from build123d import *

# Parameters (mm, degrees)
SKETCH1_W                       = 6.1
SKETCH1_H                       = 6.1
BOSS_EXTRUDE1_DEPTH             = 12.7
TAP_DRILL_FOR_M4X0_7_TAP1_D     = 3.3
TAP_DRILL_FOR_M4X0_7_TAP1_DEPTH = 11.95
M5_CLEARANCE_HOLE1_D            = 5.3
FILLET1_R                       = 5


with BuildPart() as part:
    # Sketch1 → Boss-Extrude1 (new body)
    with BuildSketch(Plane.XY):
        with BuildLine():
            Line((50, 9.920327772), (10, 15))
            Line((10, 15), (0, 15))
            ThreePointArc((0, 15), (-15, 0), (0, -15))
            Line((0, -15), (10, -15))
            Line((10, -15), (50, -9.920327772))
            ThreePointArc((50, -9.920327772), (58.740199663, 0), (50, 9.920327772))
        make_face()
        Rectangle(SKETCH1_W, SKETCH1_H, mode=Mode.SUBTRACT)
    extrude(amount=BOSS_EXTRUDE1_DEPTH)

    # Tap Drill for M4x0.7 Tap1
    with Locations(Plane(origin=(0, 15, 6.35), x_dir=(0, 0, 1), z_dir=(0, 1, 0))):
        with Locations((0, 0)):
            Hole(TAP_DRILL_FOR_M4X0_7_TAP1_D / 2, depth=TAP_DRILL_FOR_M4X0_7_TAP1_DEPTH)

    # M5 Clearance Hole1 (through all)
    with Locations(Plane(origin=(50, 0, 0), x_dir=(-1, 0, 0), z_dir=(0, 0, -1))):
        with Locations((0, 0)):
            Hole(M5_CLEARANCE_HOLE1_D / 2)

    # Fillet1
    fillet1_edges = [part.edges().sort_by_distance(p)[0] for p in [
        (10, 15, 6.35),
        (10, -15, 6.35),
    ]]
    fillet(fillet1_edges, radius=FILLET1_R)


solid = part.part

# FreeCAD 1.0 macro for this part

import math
import FreeCAD as App
import Part
import Sketcher
from FreeCAD import Vector


def edges_at(feature, points):
    """Names of the edges that pass closest to the given points."""
    edges = feature.Shape.Edges
    near = lambda p: min(range(len(edges)), key=lambda i: edges[i].distToShape(Part.Vertex(*p))[0])
    return sorted({f"Edge{near(p) + 1}" for p in points})


def add_polygon(sketch, points):
    """Adds a closed chain of lines whose ends are joined by coincident constraints."""
    first, n = sketch.GeometryCount, len(points)
    for a, b in zip(points, points[1:] + points[:1]):
        sketch.addGeometry(Part.LineSegment(App.Vector(*a, 0), App.Vector(*b, 0)), False)
    for i in range(n):
        sketch.addConstraint(Sketcher.Constraint("Coincident", first + i, 2, first + (i + 1) % n, 1))

doc = App.newDocument("Part")
body = doc.addObject("PartDesign::Body", "Body")

# Sketch on XY plane
sketch1 = body.newObject("Sketcher::SketchObject", "Sketch")
sketch1.AttachmentSupport = (doc.getObject("XY_Plane"), [""])
sketch1.MapMode = "FlatFace"
sketch1.addGeometry(Part.LineSegment(Vector(50, 10, 0), Vector(10, 15, 0)), False)  # 0
sketch1.addGeometry(Part.LineSegment(Vector(10, 15, 0), Vector(0, 15, 0)), False)  # 1
sketch1.addGeometry(Part.ArcOfCircle(Part.Circle(Vector(0, 0, 0), Vector(0, 0, 1), 15), math.radians(90), math.radians(270)), False)  # 2
sketch1.addGeometry(Part.LineSegment(Vector(0, -15, 0), Vector(10, -15, 0)), False)  # 3
sketch1.addGeometry(Part.LineSegment(Vector(10, -15, 0), Vector(50, -10, 0)), False)  # 4
sketch1.addGeometry(Part.ArcOfCircle(Part.Circle(Vector(49, 0, 0), Vector(0, 0, 1), 10), math.radians(-83), math.radians(83)), False)  # 5
add_polygon(sketch1, [(3, -3), (-3, -3), (-3, 3), (3, 3)])  # lines 6-9
sketch1.addConstraint(Sketcher.Constraint("Coincident", 0, 2, 1, 1))
sketch1.addConstraint(Sketcher.Constraint("Tangent", 1, 2, 2, 1))
sketch1.addConstraint(Sketcher.Constraint("Tangent", 2, 2, 3, 1))
sketch1.addConstraint(Sketcher.Constraint("Coincident", 3, 2, 4, 1))
sketch1.addConstraint(Sketcher.Constraint("Tangent", 4, 2, 5, 1))
sketch1.addConstraint(Sketcher.Constraint("Tangent", 5, 2, 0, 1))
sketch1.addConstraint(Sketcher.Constraint("Horizontal", 1))
sketch1.addConstraint(Sketcher.Constraint("Horizontal", 3))
sketch1.addConstraint(Sketcher.Constraint("Horizontal", 6))
sketch1.addConstraint(Sketcher.Constraint("Vertical", 7))
sketch1.addConstraint(Sketcher.Constraint("Horizontal", 8))
sketch1.addConstraint(Sketcher.Constraint("Vertical", 9))
sketch1.addConstraint(Sketcher.Constraint("Coincident", 2, 3, -1, 1))
sketch1.addConstraint(Sketcher.Constraint("Symmetric", 6, 2, 8, 2, -1, 1))
sketch1.addConstraint(Sketcher.Constraint("Symmetric", 4, 2, 5, 2, -1))
sketch1.addConstraint(Sketcher.Constraint("Equal", 8, 7))
sketch1.addConstraint(Sketcher.Constraint("Radius", 2, 15.0))
sketch1.addConstraint(Sketcher.Constraint("Radius", 5, 10.0))
sketch1.addConstraint(Sketcher.Constraint("DistanceX", 1, 2, 1, 1, 10.0))
sketch1.addConstraint(Sketcher.Constraint("DistanceX", 6, 2, 6, 1, 6.1))
sketch1.addConstraint(Sketcher.Constraint("DistanceX", -1, 1, 4, 2, 50.0))
pad1 = body.newObject("PartDesign::Pad", "Pad")
pad1.Profile = sketch1
pad1.Length = 12.7

# Sketch on XZ plane
sketch2 = body.newObject("Sketcher::SketchObject", "Sketch001")
sketch2.AttachmentSupport = (doc.getObject("XZ_Plane"), [""])
sketch2.MapMode = "FlatFace"
sketch2.AttachmentOffset = App.Placement(Vector(0, 0, -15), App.Rotation())
sketch2.addGeometry(Part.Circle(Vector(0, 6.3, 0), Vector(0, 0, 1), 1.6), False)
sketch2.addConstraint(Sketcher.Constraint("PointOnObject", 0, 3, -2))
sketch2.addConstraint(Sketcher.Constraint("Diameter", 0, 3.3))
sketch2.addConstraint(Sketcher.Constraint("DistanceY", -1, 1, 0, 3, 6.35))
doc.recompute()
hole = body.newObject("PartDesign::Hole", "Hole")
hole.Profile = sketch2
hole.ThreadType = "None"
hole.Diameter = 3.3
hole.DepthType = "Dimension"
hole.Depth = 11.95
hole.DrillPoint = "Flat"
hole.Reversed = True

# Sketch on XY plane
sketch3 = body.newObject("Sketcher::SketchObject", "Sketch002")
sketch3.AttachmentSupport = (doc.getObject("XY_Plane"), [""])
sketch3.MapMode = "FlatFace"
sketch3.addGeometry(Part.Circle(Vector(50, 0, 0), Vector(0, 0, 1), 2.6), False)
sketch3.addConstraint(Sketcher.Constraint("PointOnObject", 0, 3, -1))
sketch3.addConstraint(Sketcher.Constraint("Diameter", 0, 5.3))
sketch3.addConstraint(Sketcher.Constraint("DistanceX", -1, 1, 0, 3, 50.0))
doc.recompute()
hole2 = body.newObject("PartDesign::Hole", "Hole001")
hole2.Profile = sketch3
hole2.ThreadType = "None"
hole2.Diameter = 5.3
hole2.DepthType = "ThroughAll"
hole2.Reversed = True
doc.recompute()

fillet = body.newObject("PartDesign::Fillet", "Fillet")
fillet.Base = (hole2, edges_at(hole2, [(10, 15, 6.35), (10, -15, 6.35)]))
fillet.Radius = 5

doc.recompute()
